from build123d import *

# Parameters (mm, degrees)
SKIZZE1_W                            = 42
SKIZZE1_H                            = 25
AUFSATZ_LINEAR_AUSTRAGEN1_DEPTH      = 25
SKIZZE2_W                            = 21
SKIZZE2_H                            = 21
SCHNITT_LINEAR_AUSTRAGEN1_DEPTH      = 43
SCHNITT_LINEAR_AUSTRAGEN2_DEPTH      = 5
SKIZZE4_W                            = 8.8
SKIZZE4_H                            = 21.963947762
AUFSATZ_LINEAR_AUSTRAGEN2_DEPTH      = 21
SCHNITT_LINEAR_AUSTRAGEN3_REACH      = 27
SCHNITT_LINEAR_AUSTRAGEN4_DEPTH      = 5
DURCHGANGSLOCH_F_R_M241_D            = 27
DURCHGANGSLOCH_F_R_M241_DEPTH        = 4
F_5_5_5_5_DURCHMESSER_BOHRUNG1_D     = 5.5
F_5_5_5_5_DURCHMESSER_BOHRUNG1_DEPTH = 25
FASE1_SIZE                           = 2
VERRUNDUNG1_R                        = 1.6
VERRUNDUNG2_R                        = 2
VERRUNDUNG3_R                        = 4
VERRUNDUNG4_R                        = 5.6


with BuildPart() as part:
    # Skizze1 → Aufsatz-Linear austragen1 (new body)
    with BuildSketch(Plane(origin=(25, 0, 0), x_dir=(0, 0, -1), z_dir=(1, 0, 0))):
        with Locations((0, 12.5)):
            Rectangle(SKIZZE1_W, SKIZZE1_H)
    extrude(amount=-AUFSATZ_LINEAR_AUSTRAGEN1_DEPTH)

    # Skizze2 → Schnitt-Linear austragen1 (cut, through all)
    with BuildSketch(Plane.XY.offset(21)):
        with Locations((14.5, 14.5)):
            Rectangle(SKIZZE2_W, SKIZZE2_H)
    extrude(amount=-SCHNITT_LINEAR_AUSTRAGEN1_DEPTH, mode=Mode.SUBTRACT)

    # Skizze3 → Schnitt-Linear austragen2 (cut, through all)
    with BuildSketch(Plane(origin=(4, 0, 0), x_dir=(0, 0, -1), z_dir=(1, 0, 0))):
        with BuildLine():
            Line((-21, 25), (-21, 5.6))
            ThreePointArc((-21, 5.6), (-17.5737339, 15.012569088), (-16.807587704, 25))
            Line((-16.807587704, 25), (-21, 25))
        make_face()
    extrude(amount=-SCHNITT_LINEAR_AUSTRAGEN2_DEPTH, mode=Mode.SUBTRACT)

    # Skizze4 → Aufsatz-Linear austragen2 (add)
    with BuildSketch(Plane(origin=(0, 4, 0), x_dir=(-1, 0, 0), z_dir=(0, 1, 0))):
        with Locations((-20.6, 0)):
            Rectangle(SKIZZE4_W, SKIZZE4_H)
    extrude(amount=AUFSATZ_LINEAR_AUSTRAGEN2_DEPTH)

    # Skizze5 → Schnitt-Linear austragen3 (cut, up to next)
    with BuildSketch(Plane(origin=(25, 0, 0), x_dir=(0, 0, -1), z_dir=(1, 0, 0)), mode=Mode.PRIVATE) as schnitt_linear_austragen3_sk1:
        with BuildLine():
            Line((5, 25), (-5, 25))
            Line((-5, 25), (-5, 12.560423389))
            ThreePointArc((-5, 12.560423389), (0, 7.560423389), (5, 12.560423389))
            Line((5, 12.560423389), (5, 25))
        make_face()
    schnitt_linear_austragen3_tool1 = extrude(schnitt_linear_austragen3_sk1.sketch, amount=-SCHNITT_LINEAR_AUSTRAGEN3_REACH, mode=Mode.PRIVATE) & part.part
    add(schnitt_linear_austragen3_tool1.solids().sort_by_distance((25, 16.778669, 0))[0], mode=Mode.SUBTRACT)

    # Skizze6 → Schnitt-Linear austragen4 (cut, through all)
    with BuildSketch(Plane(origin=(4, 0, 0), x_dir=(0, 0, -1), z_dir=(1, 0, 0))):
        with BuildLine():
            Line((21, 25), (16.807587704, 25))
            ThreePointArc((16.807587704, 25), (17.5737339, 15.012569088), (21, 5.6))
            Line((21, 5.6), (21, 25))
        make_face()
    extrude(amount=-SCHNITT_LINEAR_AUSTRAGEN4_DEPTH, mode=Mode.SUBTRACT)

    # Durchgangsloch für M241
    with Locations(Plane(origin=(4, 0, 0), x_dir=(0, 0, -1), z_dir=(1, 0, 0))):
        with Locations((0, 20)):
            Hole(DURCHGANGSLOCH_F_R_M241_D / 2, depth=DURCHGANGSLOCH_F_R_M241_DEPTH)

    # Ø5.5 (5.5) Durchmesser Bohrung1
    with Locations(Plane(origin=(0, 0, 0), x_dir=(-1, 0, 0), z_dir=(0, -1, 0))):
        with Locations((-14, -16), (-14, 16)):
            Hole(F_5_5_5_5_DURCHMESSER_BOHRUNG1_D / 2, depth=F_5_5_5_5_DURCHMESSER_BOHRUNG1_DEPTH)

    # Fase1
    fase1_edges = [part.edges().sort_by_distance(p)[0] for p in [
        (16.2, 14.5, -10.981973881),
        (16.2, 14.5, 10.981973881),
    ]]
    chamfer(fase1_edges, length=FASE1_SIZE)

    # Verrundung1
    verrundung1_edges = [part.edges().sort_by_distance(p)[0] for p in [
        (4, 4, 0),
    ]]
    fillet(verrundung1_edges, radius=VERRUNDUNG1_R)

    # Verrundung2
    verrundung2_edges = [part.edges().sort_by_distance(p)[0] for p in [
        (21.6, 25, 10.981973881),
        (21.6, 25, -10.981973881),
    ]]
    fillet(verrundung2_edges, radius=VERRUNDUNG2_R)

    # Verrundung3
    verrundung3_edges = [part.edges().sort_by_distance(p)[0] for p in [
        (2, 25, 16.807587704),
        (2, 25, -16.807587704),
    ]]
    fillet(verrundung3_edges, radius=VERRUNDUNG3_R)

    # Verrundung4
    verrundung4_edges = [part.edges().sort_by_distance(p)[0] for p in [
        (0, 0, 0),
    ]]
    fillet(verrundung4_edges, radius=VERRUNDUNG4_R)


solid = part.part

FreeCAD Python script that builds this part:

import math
import FreeCAD as App
import Part
import Sketcher
from FreeCAD import Vector


def edges_at(feature, points):
    """Names of the edges that pass closest to the given points."""
    edges = feature.Shape.Edges
    near = lambda p: min(range(len(edges)), key=lambda i: edges[i].distToShape(Part.Vertex(*p))[0])
    return sorted({f"Edge{near(p) + 1}" for p in points})


def add_polygon(sketch, points):
    """Adds a closed chain of lines whose ends are joined by coincident constraints."""
    first, n = sketch.GeometryCount, len(points)
    for a, b in zip(points, points[1:] + points[:1]):
        sketch.addGeometry(Part.LineSegment(App.Vector(*a, 0), App.Vector(*b, 0)), False)
    for i in range(n):
        sketch.addConstraint(Sketcher.Constraint("Coincident", first + i, 2, first + (i + 1) % n, 1))

doc = App.newDocument("Part")
body = doc.addObject("PartDesign::Body", "Body")

sketch1 = doc.addObject("Sketcher::SketchObject", "Sketch")
body.addObject(sketch1)
sketch1.AttachmentSupport = (doc.YZ_Plane, [""])
sketch1.MapMode = "FlatFace"
sketch1.AttachmentOffset = App.Placement(Vector(0, 0, 25), App.Rotation())
add_polygon(sketch1, [(25, 21), (0, 21), (0, -21), (25, -21)])
sketch1.addConstraint([
    Sketcher.Constraint("Horizontal", 0),
    Sketcher.Constraint("Vertical", 1),
    Sketcher.Constraint("Horizontal", 2),
    Sketcher.Constraint("Vertical", 3),
    Sketcher.Constraint("Symmetric", 0, 2, 1, 2, -1, 1),
    Sketcher.Constraint("DistanceX", 0, 2, 0, 1, 25.0),
    Sketcher.Constraint("DistanceY", 1, 2, 1, 1, 42.0),
])
pad1 = doc.addObject("PartDesign::Pad", "Pad")
body.addObject(pad1)
pad1.Profile = sketch1
pad1.Length = 25
pad1.Reversed = True

sketch2 = doc.addObject("Sketcher::SketchObject", "Sketch001")
body.addObject(sketch2)
sketch2.AttachmentSupport = (doc.XY_Plane, [""])
sketch2.MapMode = "FlatFace"
sketch2.AttachmentOffset = App.Placement(Vector(0, 0, 21), App.Rotation())
add_polygon(sketch2, [(4, 25), (4, 4), (25, 4), (25, 25)])
sketch2.addConstraint([
    Sketcher.Constraint("Vertical", 0),
    Sketcher.Constraint("Horizontal", 1),
    Sketcher.Constraint("Vertical", 2),
    Sketcher.Constraint("Horizontal", 3),
    Sketcher.Constraint("Equal", 3, 0),
    Sketcher.Constraint("DistanceX", 1, 1, 1, 2, 21.0),
    Sketcher.Constraint("DistanceX", -1, 1, 0, 2, 4.0),
    Sketcher.Constraint("DistanceY", -1, 1, 0, 2, 4.0),
])
pocket1 = doc.addObject("PartDesign::Pocket", "Pocket")
body.addObject(pocket1)
pocket1.Profile = sketch2
pocket1.Type = "ThroughAll"

sketch3 = doc.addObject("Sketcher::SketchObject", "Sketch002")
body.addObject(sketch3)
sketch3.AttachmentSupport = (doc.YZ_Plane, [""])
sketch3.MapMode = "FlatFace"
sketch3.AttachmentOffset = App.Placement(Vector(0, 0, 4), App.Rotation())
sketch3.addGeometry([
    Part.LineSegment(Vector(25, 21, 0), Vector(5.6, 21, 0)),
    Part.ArcOfCircle(Part.Circle(Vector(22.8, 53.60935, 0), Vector(0, 0, 1), 36.867461), math.radians(-117.809678), math.radians(-86.578944)),
    Part.LineSegment(Vector(25, 16.807588, 0), Vector(25, 21, 0)),
], False)
sketch3.addConstraint([
    Sketcher.Constraint("Coincident", 0, 2, 1, 1),
    Sketcher.Constraint("Coincident", 1, 2, 2, 1),
    Sketcher.Constraint("Coincident", 2, 2, 0, 1),
    Sketcher.Constraint("Horizontal", 0),
    Sketcher.Constraint("Vertical", 2),
    Sketcher.Constraint("DistanceX", 0, 2, 0, 1, 19.4),
    Sketcher.Constraint("DistanceY", -1, 1, 0, 2, 21.0),
    Sketcher.Constraint("DistanceX", -1, 1, 1, 2, 25.0),
    Sketcher.Constraint("DistanceX", -1, 1, 1, 3, 22.8),
    Sketcher.Constraint("Radius", 1, 36.867461),
])
pocket2 = doc.addObject("PartDesign::Pocket", "Pocket001")
body.addObject(pocket2)
pocket2.Profile = sketch3
pocket2.Type = "ThroughAll"

sketch4 = doc.addObject("Sketcher::SketchObject", "Sketch003")
body.addObject(sketch4)
sketch4.AttachmentSupport = (doc.XZ_Plane, [""])
sketch4.MapMode = "FlatFace"
sketch4.AttachmentOffset = App.Placement(Vector(0, 0, -4), App.Rotation())
add_polygon(sketch4, [(25, 10.981974), (25, -10.981974), (16.2, -10.981974), (16.2, 10.981974)])
sketch4.addConstraint([
    Sketcher.Constraint("Vertical", 0),
    Sketcher.Constraint("Horizontal", 1),
    Sketcher.Constraint("Vertical", 2),
    Sketcher.Constraint("Horizontal", 3),
    Sketcher.Constraint("DistanceX", 1, 2, 1, 1, 8.8),
    Sketcher.Constraint("DistanceX", -1, 1, 0, 2, 25.0),
    Sketcher.Constraint("DistanceY", 0, 2, 0, 1, 21.963948),
    Sketcher.Constraint("DistanceY", 0, 2, -1, 1, 10.981974),
])
pad2 = doc.addObject("PartDesign::Pad", "Pad001")
body.addObject(pad2)
pad2.Profile = sketch4
pad2.Length = 21
pad2.Reversed = True

sketch5 = doc.addObject("Sketcher::SketchObject", "Sketch004")
body.addObject(sketch5)
sketch5.AttachmentSupport = (doc.YZ_Plane, [""])
sketch5.MapMode = "FlatFace"
sketch5.AttachmentOffset = App.Placement(Vector(0, 0, 25), App.Rotation())
sketch5.addGeometry([
    Part.LineSegment(Vector(25, -5, 0), Vector(25, 5, 0)),
    Part.LineSegment(Vector(25, 5, 0), Vector(12.560423, 5, 0)),
    Part.ArcOfCircle(Part.Circle(Vector(12.560423, 0, 0), Vector(0, 0, 1), 5), math.radians(90), math.radians(270)),
    Part.LineSegment(Vector(12.560423, -5, 0), Vector(25, -5, 0)),
], False)
sketch5.addConstraint([
    Sketcher.Constraint("Coincident", 0, 2, 1, 1),
    Sketcher.Constraint("Tangent", 1, 2, 2, 1),
    Sketcher.Constraint("Tangent", 2, 2, 3, 1),
    Sketcher.Constraint("Coincident", 3, 2, 0, 1),
    Sketcher.Constraint("Vertical", 0),
    Sketcher.Constraint("Horizontal", 1),
    Sketcher.Constraint("Horizontal", 3),
    Sketcher.Constraint("PointOnObject", 2, 3, -1),
    Sketcher.Constraint("Radius", 2, 5.0),
    Sketcher.Constraint("DistanceX", -1, 1, 0, 2, 25.0),
    Sketcher.Constraint("DistanceX", 1, 2, 1, 1, 12.439577),
])
pocket3 = doc.addObject("PartDesign::Pocket", "Pocket002")
body.addObject(pocket3)
pocket3.Profile = sketch5
pocket3.Type = "UpToFirst"

sketch6 = doc.addObject("Sketcher::SketchObject", "Sketch005")
body.addObject(sketch6)
sketch6.AttachmentSupport = (doc.YZ_Plane, [""])
sketch6.MapMode = "FlatFace"
sketch6.AttachmentOffset = App.Placement(Vector(0, 0, 4), App.Rotation())
sketch6.addGeometry([
    Part.LineSegment(Vector(25, -21, 0), Vector(25, -16.807588, 0)),
    Part.ArcOfCircle(Part.Circle(Vector(22.8, -53.60935, 0), Vector(0, 0, 1), 36.867461), math.radians(86.578944), math.radians(117.809678)),
    Part.LineSegment(Vector(5.6, -21, 0), Vector(25, -21, 0)),
], False)
sketch6.addConstraint([
    Sketcher.Constraint("Coincident", 0, 2, 1, 1),
    Sketcher.Constraint("Coincident", 1, 2, 2, 1),
    Sketcher.Constraint("Coincident", 2, 2, 0, 1),
    Sketcher.Constraint("Vertical", 0),
    Sketcher.Constraint("Horizontal", 2),
    Sketcher.Constraint("DistanceX", 2, 1, 2, 2, 19.4),
    Sketcher.Constraint("DistanceX", -1, 1, 0, 2, 25.0),
    Sketcher.Constraint("DistanceY", 1, 2, -1, 1, 21.0),
    Sketcher.Constraint("DistanceX", -1, 1, 1, 3, 22.8),
    Sketcher.Constraint("Radius", 1, 36.867461),
])
pocket4 = doc.addObject("PartDesign::Pocket", "Pocket003")
body.addObject(pocket4)
pocket4.Profile = sketch6
pocket4.Type = "ThroughAll"

sketch7 = doc.addObject("Sketcher::SketchObject", "Sketch006")
body.addObject(sketch7)
sketch7.AttachmentSupport = (doc.YZ_Plane, [""])
sketch7.MapMode = "FlatFace"
sketch7.AttachmentOffset = App.Placement(Vector(0, 0, 4), App.Rotation())
sketch7.addGeometry(Part.Circle(Vector(20, 0, 0), Vector(0, 0, 1), 13.5), False)
sketch7.addConstraint([
    Sketcher.Constraint("PointOnObject", 0, 3, -1),
    Sketcher.Constraint("Diameter", 0, 27.0),
    Sketcher.Constraint("DistanceX", -1, 1, 0, 3, 20.0),
])
doc.recompute()
hole = doc.addObject("PartDesign::Hole", "Hole")
body.addObject(hole)
hole.Profile = sketch7
hole.ThreadType = "None"
hole.Diameter = 27
hole.DepthType = "Dimension"
hole.Depth = 4
hole.DrillPoint = "Flat"

sketch8 = doc.addObject("Sketcher::SketchObject", "Sketch007")
body.addObject(sketch8)
sketch8.AttachmentSupport = (doc.XZ_Plane, [""])
sketch8.MapMode = "FlatFace"
sketch8.addGeometry([
    Part.Circle(Vector(14, 16, 0), Vector(0, 0, 1), 2.75),
    Part.Circle(Vector(14, -16, 0), Vector(0, 0, 1), 2.75),
], False)
sketch8.addConstraint([
    Sketcher.Constraint("Equal", 0, 1),
    Sketcher.Constraint("Symmetric", 0, 3, 1, 3, -1),
    Sketcher.Constraint("Diameter", 0, 5.5),
    Sketcher.Constraint("DistanceX", -1, 1, 0, 3, 14.0),
    Sketcher.Constraint("DistanceY", -1, 1, 0, 3, 16.0),
])
doc.recompute()
hole2 = doc.addObject("PartDesign::Hole", "Hole001")
body.addObject(hole2)
hole2.Profile = sketch8
hole2.ThreadType = "None"
hole2.Diameter = 5.5
hole2.DepthType = "Dimension"
hole2.Depth = 25
hole2.DrillPoint = "Flat"
doc.recompute()

chamfer = doc.addObject("PartDesign::Chamfer", "Chamfer")
body.addObject(chamfer)
chamfer.Base = (hole2, edges_at(hole2, [(16.2, 14.5, -10.982), (16.2, 14.5, 10.982)]))
chamfer.Size = 2
doc.recompute()

fillet = doc.addObject("PartDesign::Fillet", "Fillet")
body.addObject(fillet)
fillet.Base = (chamfer, edges_at(chamfer, [(4, 4, 0)]))
fillet.Radius = 1.6
doc.recompute()

fillet2 = doc.addObject("PartDesign::Fillet", "Fillet001")
body.addObject(fillet2)
fillet2.Base = (fillet, edges_at(fillet, [(21.6, 25, 10.982), (21.6, 25, -10.982)]))
fillet2.Radius = 2
doc.recompute()

fillet3 = doc.addObject("PartDesign::Fillet", "Fillet002")
body.addObject(fillet3)
fillet3.Base = (fillet2, edges_at(fillet2, [(2, 25, 16.808), (2, 25, -16.808)]))
fillet3.Radius = 4
doc.recompute()

fillet4 = doc.addObject("PartDesign::Fillet", "Fillet003")
body.addObject(fillet4)
fillet4.Base = (fillet3, edges_at(fillet3, [(0, 0, 0)]))
fillet4.Radius = 5.6

doc.recompute()
